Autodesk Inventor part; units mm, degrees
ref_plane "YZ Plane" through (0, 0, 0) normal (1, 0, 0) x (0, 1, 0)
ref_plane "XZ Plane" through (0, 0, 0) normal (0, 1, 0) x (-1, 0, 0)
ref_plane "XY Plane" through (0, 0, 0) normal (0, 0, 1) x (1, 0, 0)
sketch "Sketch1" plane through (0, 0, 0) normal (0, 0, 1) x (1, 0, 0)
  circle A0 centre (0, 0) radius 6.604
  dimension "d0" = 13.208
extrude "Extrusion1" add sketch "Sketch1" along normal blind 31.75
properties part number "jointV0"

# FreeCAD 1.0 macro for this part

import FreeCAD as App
import Part
import Sketcher
from FreeCAD import Vector
Q = App.Units.Quantity

doc = App.newDocument("Part")
body = doc.addObject("PartDesign::Body", "Body")

sketch1 = doc.addObject("Sketcher::SketchObject", "Sketch")
body.addObject(sketch1)
sketch1.AttachmentSupport = (doc.XY_Plane, [""])
sketch1.MapMode = "FlatFace"
sketch1.addGeometry(Part.Circle(Vector(0, 0, 0), Vector(0, 0, 1), 7), False)
sketch1.addConstraint([
    Sketcher.Constraint("Coincident", 0, 3, -1, 1),
    Sketcher.Constraint("Diameter", 0, Q("0.52 in")),
])
pad1 = doc.addObject("PartDesign::Pad", "Pad")
body.addObject(pad1)
pad1.Profile = sketch1
pad1.Length = Q("1.25 in")

doc.recompute()
